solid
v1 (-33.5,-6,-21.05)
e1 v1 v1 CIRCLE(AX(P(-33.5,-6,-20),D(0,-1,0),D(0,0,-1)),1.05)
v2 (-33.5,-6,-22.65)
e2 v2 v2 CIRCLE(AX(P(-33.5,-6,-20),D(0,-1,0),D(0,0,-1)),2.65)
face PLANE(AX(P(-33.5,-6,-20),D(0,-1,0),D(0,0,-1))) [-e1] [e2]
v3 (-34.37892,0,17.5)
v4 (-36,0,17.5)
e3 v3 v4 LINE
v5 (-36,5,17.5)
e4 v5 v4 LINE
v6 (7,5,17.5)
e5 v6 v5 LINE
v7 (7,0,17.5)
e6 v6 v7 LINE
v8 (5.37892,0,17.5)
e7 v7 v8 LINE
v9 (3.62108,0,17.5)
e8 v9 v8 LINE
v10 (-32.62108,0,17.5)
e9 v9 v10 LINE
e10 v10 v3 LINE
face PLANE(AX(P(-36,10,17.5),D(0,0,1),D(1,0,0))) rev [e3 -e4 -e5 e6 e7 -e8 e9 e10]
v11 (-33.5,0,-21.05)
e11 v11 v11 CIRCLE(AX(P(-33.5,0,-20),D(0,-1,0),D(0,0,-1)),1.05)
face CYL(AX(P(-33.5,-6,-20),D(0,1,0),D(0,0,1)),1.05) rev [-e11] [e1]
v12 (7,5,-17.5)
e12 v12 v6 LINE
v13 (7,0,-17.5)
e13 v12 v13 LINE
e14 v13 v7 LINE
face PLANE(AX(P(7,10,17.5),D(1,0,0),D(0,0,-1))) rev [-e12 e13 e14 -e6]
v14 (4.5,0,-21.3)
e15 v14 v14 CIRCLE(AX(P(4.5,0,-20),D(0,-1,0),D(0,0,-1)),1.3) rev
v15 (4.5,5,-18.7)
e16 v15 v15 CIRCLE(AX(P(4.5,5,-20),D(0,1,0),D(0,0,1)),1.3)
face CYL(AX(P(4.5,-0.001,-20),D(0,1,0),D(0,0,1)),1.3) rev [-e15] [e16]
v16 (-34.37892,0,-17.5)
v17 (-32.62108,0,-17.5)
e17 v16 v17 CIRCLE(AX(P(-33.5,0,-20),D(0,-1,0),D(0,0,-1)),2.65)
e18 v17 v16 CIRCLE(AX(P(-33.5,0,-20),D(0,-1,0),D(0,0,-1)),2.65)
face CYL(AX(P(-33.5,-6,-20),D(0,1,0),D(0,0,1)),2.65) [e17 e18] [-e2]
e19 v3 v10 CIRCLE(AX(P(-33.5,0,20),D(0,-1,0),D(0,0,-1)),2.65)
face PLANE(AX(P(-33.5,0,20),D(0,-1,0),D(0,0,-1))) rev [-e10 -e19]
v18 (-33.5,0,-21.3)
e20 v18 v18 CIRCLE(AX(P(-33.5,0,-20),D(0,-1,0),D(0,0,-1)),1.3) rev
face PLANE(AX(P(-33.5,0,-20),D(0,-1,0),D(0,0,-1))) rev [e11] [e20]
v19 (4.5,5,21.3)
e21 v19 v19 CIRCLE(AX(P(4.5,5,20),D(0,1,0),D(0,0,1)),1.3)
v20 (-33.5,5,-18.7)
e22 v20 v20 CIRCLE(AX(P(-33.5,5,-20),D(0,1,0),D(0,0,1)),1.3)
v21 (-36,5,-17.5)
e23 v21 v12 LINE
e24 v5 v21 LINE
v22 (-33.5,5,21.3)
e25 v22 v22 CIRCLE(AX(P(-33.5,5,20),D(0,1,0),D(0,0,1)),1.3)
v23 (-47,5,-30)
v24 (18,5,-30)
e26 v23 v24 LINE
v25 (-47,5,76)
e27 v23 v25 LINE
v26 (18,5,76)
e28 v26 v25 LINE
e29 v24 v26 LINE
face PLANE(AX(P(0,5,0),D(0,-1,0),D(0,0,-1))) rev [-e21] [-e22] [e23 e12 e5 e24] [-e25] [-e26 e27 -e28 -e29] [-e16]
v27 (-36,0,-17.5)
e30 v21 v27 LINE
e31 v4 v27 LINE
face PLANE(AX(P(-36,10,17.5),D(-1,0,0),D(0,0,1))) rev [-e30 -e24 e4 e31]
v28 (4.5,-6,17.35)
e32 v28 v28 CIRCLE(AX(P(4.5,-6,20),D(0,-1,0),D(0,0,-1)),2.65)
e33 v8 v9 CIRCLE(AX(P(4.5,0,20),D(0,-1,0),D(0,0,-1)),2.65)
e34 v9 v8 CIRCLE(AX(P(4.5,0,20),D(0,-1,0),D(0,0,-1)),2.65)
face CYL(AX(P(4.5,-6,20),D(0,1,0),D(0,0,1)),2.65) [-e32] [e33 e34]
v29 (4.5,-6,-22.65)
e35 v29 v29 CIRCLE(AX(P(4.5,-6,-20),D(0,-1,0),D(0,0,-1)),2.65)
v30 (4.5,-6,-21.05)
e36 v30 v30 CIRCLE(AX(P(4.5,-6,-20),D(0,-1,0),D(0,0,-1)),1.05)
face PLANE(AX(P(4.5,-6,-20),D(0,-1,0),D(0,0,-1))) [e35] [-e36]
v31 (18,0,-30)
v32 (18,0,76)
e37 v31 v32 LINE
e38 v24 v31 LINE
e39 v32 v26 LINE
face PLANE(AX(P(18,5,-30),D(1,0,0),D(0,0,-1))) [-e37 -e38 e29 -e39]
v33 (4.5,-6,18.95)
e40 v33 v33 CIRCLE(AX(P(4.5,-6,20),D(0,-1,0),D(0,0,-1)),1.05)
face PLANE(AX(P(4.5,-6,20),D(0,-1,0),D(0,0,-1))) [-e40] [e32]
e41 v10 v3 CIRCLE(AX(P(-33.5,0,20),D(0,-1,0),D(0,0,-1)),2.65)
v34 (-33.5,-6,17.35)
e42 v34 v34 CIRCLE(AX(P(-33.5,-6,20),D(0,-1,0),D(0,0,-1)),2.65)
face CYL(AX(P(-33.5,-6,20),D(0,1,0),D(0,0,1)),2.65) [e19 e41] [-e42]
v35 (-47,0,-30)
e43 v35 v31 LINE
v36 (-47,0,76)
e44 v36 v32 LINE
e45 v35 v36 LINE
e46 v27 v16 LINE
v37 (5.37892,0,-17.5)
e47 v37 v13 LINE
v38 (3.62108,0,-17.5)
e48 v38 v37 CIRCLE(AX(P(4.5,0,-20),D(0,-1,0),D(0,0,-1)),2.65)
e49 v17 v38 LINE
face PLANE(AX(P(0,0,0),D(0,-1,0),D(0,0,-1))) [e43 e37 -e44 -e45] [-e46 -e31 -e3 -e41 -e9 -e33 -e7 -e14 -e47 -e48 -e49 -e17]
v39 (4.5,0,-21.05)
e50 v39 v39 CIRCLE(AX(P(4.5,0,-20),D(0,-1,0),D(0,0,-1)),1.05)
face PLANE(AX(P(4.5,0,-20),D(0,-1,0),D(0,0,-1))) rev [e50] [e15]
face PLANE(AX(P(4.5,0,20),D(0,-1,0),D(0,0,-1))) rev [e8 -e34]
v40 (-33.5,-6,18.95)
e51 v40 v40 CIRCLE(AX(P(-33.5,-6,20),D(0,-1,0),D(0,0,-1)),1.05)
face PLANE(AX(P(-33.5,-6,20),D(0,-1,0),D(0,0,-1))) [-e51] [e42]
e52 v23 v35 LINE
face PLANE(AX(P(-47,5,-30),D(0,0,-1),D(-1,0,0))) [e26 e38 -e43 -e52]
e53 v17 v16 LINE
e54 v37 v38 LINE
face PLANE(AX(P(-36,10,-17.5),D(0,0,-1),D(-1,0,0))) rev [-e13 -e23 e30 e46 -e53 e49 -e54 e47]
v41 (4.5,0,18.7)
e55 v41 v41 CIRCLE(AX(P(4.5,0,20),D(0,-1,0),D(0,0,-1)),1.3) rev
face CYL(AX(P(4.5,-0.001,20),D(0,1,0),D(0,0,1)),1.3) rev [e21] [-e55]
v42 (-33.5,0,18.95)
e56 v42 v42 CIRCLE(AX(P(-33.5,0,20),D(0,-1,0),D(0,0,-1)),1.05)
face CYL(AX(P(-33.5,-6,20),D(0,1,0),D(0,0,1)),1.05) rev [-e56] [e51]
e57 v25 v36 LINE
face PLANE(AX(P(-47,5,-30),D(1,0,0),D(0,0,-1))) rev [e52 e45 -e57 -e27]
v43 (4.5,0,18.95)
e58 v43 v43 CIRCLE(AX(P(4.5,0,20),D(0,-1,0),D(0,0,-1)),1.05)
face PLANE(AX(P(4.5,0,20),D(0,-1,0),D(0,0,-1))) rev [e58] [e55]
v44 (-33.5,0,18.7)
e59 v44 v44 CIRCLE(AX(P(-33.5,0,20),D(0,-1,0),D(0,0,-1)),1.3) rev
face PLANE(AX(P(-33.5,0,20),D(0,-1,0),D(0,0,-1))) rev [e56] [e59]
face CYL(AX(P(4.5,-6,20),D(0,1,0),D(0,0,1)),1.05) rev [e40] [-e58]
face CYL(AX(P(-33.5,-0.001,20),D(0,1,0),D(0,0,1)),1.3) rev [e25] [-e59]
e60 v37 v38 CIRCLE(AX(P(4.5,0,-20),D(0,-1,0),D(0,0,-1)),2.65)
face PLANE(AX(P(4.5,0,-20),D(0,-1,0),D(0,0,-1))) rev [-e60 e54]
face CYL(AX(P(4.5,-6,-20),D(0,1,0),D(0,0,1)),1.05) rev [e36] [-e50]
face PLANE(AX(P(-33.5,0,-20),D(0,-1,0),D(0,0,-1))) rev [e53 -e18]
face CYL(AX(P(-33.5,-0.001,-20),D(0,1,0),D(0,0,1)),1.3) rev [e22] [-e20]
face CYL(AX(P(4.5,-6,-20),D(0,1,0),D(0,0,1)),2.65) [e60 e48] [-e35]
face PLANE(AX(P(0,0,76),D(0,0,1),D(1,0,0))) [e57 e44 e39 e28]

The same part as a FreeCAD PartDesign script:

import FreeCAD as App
import Part
import Sketcher

V = App.Vector

doc = App.newDocument("Part")
body = doc.addObject("PartDesign::Body", "Body")

# Sketch on XZ plane
sketch1 = body.newObject("Sketcher::SketchObject", "Sketch")
sketch1.AttachmentSupport = (doc.getObject("XZ_Plane"), [""])
sketch1.MapMode = "FlatFace"
sketch1.addGeometry([
    Part.LineSegment(V(-47, -30, 0), V(-47, 30, 0)),
    Part.LineSegment(V(-47, 30, 0), V(18, 30, 0)),
    Part.LineSegment(V(18, 30, 0), V(18, -30, 0)),
    Part.LineSegment(V(18, -30, 0), V(-47, -30, 0)),
], False)
sketch1.addConstraint([
    Sketcher.Constraint("Coincident", 0, 2, 1, 1),
    Sketcher.Constraint("Coincident", 1, 2, 2, 1),
    Sketcher.Constraint("Coincident", 2, 2, 3, 1),
    Sketcher.Constraint("Coincident", 3, 2, 0, 1),
    Sketcher.Constraint("Vertical", 0),
    Sketcher.Constraint("Horizontal", 1),
    Sketcher.Constraint("Vertical", 2),
    Sketcher.Constraint("Horizontal", 3),
    Sketcher.Constraint("DistanceX", 1, 1, 1, 2, 65.0),
    Sketcher.Constraint("DistanceY", 0, 1, 0, 2, 60.0),
    Sketcher.Constraint("DistanceX", 0, 2, -1, 1, 47.0),
    Sketcher.Constraint("DistanceY", -1, 1, 0, 2, 30.0),
])
pad1 = body.newObject("PartDesign::Pad", "Pad")
pad1.Profile = sketch1
pad1.Length = 5
pad1.Reversed = True

# Sketch on XZ plane
sketch2 = body.newObject("Sketcher::SketchObject", "Sketch001")
sketch2.AttachmentSupport = (doc.getObject("XZ_Plane"), [""])
sketch2.MapMode = "FlatFace"
sketch2.addGeometry([
    Part.LineSegment(V(-36, 17.5, 0), V(-36, -17.5, 0)),
    Part.LineSegment(V(-36, -17.5, 0), V(7, -17.5, 0)),
    Part.LineSegment(V(7, -17.5, 0), V(7, 17.5, 0)),
    Part.LineSegment(V(7, 17.5, 0), V(-36, 17.5, 0)),
], False)
sketch2.addConstraint([
    Sketcher.Constraint("Coincident", 0, 2, 1, 1),
    Sketcher.Constraint("Coincident", 1, 2, 2, 1),
    Sketcher.Constraint("Coincident", 2, 2, 3, 1),
    Sketcher.Constraint("Coincident", 3, 2, 0, 1),
    Sketcher.Constraint("Vertical", 0),
    Sketcher.Constraint("Horizontal", 1),
    Sketcher.Constraint("Vertical", 2),
    Sketcher.Constraint("Horizontal", 3),
    Sketcher.Constraint("DistanceX", 1, 1, 1, 2, 43.0),
    Sketcher.Constraint("DistanceY", 0, 2, 0, 1, 35.0),
    Sketcher.Constraint("DistanceX", 0, 2, -1, 1, 36.0),
    Sketcher.Constraint("DistanceY", 0, 2, -1, 1, 17.5),
])
pocket1 = body.newObject("PartDesign::Pocket", "Pocket")
pocket1.Profile = sketch2
pocket1.Length = 10

# Sketch on XZ plane
sketch3 = body.newObject("Sketcher::SketchObject", "Sketch002")
sketch3.AttachmentSupport = (doc.getObject("XZ_Plane"), [""])
sketch3.MapMode = "FlatFace"
sketch3.AttachmentOffset = App.Placement(V(0, 0, -5), App.Rotation())
sketch3.addGeometry(Part.Circle(V(-33.5, -20, 0), V(0, 0, 1), 1.3), False)
sketch3.addConstraint([
    Sketcher.Constraint("Diameter", 0, 2.6),
    Sketcher.Constraint("DistanceY", 0, 3, -1, 1, 20.0),
    Sketcher.Constraint("DistanceX", 0, 3, -1, 1, 33.5),
])
pocket2 = body.newObject("PartDesign::Pocket", "Pocket001")
pocket2.Profile = sketch3
pocket2.Type = "UpToFirst"
pocket2.Reversed = True

# Sketch on XZ plane
sketch4 = body.newObject("Sketcher::SketchObject", "Sketch003")
sketch4.AttachmentSupport = (doc.getObject("XZ_Plane"), [""])
sketch4.MapMode = "FlatFace"
sketch4.AttachmentOffset = App.Placement(V(0, 0, -5), App.Rotation())
sketch4.addGeometry(Part.Circle(V(4.5, -20, 0), V(0, 0, 1), 1.3), False)
sketch4.addConstraint([
    Sketcher.Constraint("Diameter", 0, 2.6),
    Sketcher.Constraint("DistanceY", 0, 3, -1, 1, 20.0),
    Sketcher.Constraint("DistanceX", -1, 1, 0, 3, 4.5),
])
pocket3 = body.newObject("PartDesign::Pocket", "Pocket002")
pocket3.Profile = sketch4
pocket3.Type = "UpToFirst"
pocket3.Reversed = True

# Sketch on XZ plane
sketch5 = body.newObject("Sketcher::SketchObject", "Sketch004")
sketch5.AttachmentSupport = (doc.getObject("XZ_Plane"), [""])
sketch5.MapMode = "FlatFace"
sketch5.AttachmentOffset = App.Placement(V(0, 0, -5), App.Rotation())
sketch5.addGeometry(Part.Circle(V(4.5, 20, 0), V(0, 0, 1), 1.3), False)
sketch5.addConstraint([
    Sketcher.Constraint("Diameter", 0, 2.6),
    Sketcher.Constraint("DistanceY", -1, 1, 0, 3, 20.0),
    Sketcher.Constraint("DistanceX", -1, 1, 0, 3, 4.5),
])
pocket4 = body.newObject("PartDesign::Pocket", "Pocket003")
pocket4.Profile = sketch5
pocket4.Type = "UpToFirst"
pocket4.Reversed = True

# Sketch on XZ plane
sketch6 = body.newObject("Sketcher::SketchObject", "Sketch005")
sketch6.AttachmentSupport = (doc.getObject("XZ_Plane"), [""])
sketch6.MapMode = "FlatFace"
sketch6.AttachmentOffset = App.Placement(V(0, 0, -5), App.Rotation())
sketch6.addGeometry(Part.Circle(V(-33.5, 20, 0), V(0, 0, 1), 1.3), False)
sketch6.addConstraint([
    Sketcher.Constraint("Diameter", 0, 2.6),
    Sketcher.Constraint("DistanceY", -1, 1, 0, 3, 20.0),
    Sketcher.Constraint("DistanceX", 0, 3, -1, 1, 33.5),
])
pocket5 = body.newObject("PartDesign::Pocket", "Pocket004")
pocket5.Profile = sketch6
pocket5.Type = "UpToFirst"
pocket5.Reversed = True

# Sketch on XZ plane
sketch7 = body.newObject("Sketcher::SketchObject", "Sketch006")
sketch7.AttachmentSupport = (doc.getObject("XZ_Plane"), [""])
sketch7.MapMode = "FlatFace"
sketch7.addGeometry([
    Part.Circle(V(-33.5, 20, 0), V(0, 0, 1), 2.65),  # 0
    Part.Circle(V(-33.5, 20, 0), V(0, 0, 1), 1.05),  # 1
    Part.Circle(V(-33.5, -20, 0), V(0, 0, 1), 2.65),  # 2
    Part.Circle(V(-33.5, -20, 0), V(0, 0, 1), 1.05),  # 3
    Part.Circle(V(4.5, 20, 0), V(0, 0, 1), 2.65),  # 4
    Part.Circle(V(4.5, 20, 0), V(0, 0, 1), 1.05),  # 5
    Part.Circle(V(4.5, -20, 0), V(0, 0, 1), 2.65),  # 6
    Part.Circle(V(4.5, -20, 0), V(0, 0, 1), 1.05),  # 7
], False)
sketch7.addConstraint([
    Sketcher.Constraint("Coincident", 1, 3, 0, 3),
    Sketcher.Constraint("Coincident", 3, 3, 2, 3),
    Sketcher.Constraint("Coincident", 5, 3, 4, 3),
    Sketcher.Constraint("Coincident", 7, 3, 6, 3),
    Sketcher.Constraint("Equal", 0, 2),
    Sketcher.Constraint("Equal", 1, 3),
    Sketcher.Constraint("Equal", 2, 4),
    Sketcher.Constraint("Equal", 3, 5),
    Sketcher.Constraint("Equal", 4, 6),
    Sketcher.Constraint("Equal", 5, 7),
    Sketcher.Constraint("Symmetric", 0, 3, 2, 3, -1),
    Sketcher.Constraint("Symmetric", 4, 3, 6, 3, -1),
    Sketcher.Constraint("Horizontal", 1, 3, 4, 3),
    Sketcher.Constraint("Diameter", 0, 5.3),
    Sketcher.Constraint("Diameter", 1, 2.1),
    Sketcher.Constraint("DistanceY", -1, 1, 0, 3, 20.0),
    Sketcher.Constraint("DistanceX", 0, 3, 4, 3, 38.0),
    Sketcher.Constraint("DistanceX", 0, 3, -1, 1, 33.5),
])
pad2 = body.newObject("PartDesign::Pad", "Pad001")
pad2.Profile = sketch7
pad2.Length = 6

# Sketch on XY plane
sketch8 = body.newObject("Sketcher::SketchObject", "Sketch007")
sketch8.AttachmentSupport = (doc.getObject("XY_Plane"), [""])
sketch8.MapMode = "FlatFace"
sketch8.AttachmentOffset = App.Placement(V(0, 0, 30), App.Rotation())
sketch8.addGeometry([
    Part.LineSegment(V(-47, 5, 0), V(-47, 0, 0)),
    Part.LineSegment(V(-47, 0, 0), V(18, 0, 0)),
    Part.LineSegment(V(18, 0, 0), V(18, 5, 0)),
    Part.LineSegment(V(18, 5, 0), V(-47, 5, 0)),
], False)
sketch8.addConstraint([
    Sketcher.Constraint("Coincident", 0, 2, 1, 1),
    Sketcher.Constraint("Coincident", 1, 2, 2, 1),
    Sketcher.Constraint("Coincident", 2, 2, 3, 1),
    Sketcher.Constraint("Coincident", 3, 2, 0, 1),
    Sketcher.Constraint("Vertical", 0),
    Sketcher.Constraint("Horizontal", 1),
    Sketcher.Constraint("Vertical", 2),
    Sketcher.Constraint("Horizontal", 3),
    Sketcher.Constraint("PointOnObject", 0, 2, -1),
    Sketcher.Constraint("DistanceX", 1, 1, 1, 2, 65.0),
    Sketcher.Constraint("DistanceY", 0, 2, 0, 1, 5.0),
    Sketcher.Constraint("DistanceX", 0, 2, -1, 1, 47.0),
])
pad3 = body.newObject("PartDesign::Pad", "Pad002")
pad3.Profile = sketch8
pad3.Length = 46

doc.recompute()
